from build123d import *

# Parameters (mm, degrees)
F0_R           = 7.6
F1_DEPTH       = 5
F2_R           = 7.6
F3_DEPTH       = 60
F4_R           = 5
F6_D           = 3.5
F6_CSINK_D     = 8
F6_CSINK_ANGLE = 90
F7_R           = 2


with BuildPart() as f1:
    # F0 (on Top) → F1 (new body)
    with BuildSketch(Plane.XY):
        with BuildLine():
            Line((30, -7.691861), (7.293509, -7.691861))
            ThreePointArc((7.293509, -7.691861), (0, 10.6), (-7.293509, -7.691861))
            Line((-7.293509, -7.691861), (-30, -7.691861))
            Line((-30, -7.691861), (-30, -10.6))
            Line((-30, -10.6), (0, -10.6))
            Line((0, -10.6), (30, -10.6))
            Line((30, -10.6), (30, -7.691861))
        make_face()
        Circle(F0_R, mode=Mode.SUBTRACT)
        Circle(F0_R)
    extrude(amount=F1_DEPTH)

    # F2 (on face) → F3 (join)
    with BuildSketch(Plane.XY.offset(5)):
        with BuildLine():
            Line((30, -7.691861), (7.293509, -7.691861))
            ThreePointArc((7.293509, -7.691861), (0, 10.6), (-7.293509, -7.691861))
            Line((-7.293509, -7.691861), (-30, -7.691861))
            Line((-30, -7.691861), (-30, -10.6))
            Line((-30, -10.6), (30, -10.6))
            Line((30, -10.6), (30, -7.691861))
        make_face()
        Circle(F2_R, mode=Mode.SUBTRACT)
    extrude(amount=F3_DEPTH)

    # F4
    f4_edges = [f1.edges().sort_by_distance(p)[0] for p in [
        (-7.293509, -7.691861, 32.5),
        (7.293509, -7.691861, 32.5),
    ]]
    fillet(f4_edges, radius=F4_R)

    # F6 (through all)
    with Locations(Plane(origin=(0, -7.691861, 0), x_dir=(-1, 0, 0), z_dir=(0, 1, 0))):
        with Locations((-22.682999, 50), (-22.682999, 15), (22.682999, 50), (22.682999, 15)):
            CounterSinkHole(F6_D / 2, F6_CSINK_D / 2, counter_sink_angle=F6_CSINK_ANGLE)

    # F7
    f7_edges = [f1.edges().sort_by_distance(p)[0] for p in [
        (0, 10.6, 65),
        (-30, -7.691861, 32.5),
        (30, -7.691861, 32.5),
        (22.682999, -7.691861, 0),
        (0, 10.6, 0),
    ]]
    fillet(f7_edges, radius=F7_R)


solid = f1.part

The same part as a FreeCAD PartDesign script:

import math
import FreeCAD as App
import Part
import Sketcher
from FreeCAD import Vector
Q = App.Units.Quantity


def edges_at(feature, points):
    """Names of the edges that pass closest to the given points."""
    edges = feature.Shape.Edges
    near = lambda p: min(range(len(edges)), key=lambda i: edges[i].distToShape(Part.Vertex(*p))[0])
    return sorted({f"Edge{near(p) + 1}" for p in points})

doc = App.newDocument("Part")
body = doc.addObject("PartDesign::Body", "Body")

sketch1 = body.newObject("Sketcher::SketchObject", "Sketch")
sketch1.AttachmentSupport = (doc.getObject("XY_Plane"), [""])
sketch1.MapMode = "FlatFace"
sketch1.addGeometry(Part.LineSegment(Vector(30, -7.7, 0), Vector(7.3, -7.7, 0)), False)
sketch1.addGeometry(Part.ArcOfCircle(Part.Circle(Vector(0, 0, 0), Vector(0, 0, 1), 10.6), math.radians(-47), math.radians(227)), False)
sketch1.addGeometry(Part.LineSegment(Vector(-7.3, -7.7, 0), Vector(-30, -7.7, 0)), False)
sketch1.addGeometry(Part.LineSegment(Vector(-30, -7.7, 0), Vector(-30, -10.6, 0)), False)
sketch1.addGeometry(Part.LineSegment(Vector(-30, -10.6, 0), Vector(30, -10.6, 0)), False)
sketch1.addGeometry(Part.LineSegment(Vector(30, -10.6, 0), Vector(30, -7.7, 0)), False)
sketch1.addConstraint(Sketcher.Constraint("Coincident", 0, 2, 1, 1))
sketch1.addConstraint(Sketcher.Constraint("Coincident", 1, 2, 2, 1))
sketch1.addConstraint(Sketcher.Constraint("Coincident", 2, 2, 3, 1))
sketch1.addConstraint(Sketcher.Constraint("Coincident", 3, 2, 4, 1))
sketch1.addConstraint(Sketcher.Constraint("Coincident", 4, 2, 5, 1))
sketch1.addConstraint(Sketcher.Constraint("Coincident", 5, 2, 0, 1))
sketch1.addConstraint(Sketcher.Constraint("Horizontal", 0))
sketch1.addConstraint(Sketcher.Constraint("Horizontal", 2))
sketch1.addConstraint(Sketcher.Constraint("Vertical", 3))
sketch1.addConstraint(Sketcher.Constraint("Horizontal", 4))
sketch1.addConstraint(Sketcher.Constraint("Vertical", 5))
sketch1.addConstraint(Sketcher.Constraint("Coincident", 1, 3, -1, 1))
sketch1.addConstraint(Sketcher.Constraint("Symmetric", 2, 2, 5, 2, -2))
sketch1.addConstraint(Sketcher.Constraint("Radius", 1, Q("10.6 mm")))
sketch1.addConstraint(Sketcher.Constraint("DistanceX", 4, 1, 4, 2, Q("60 mm")))
sketch1.addConstraint(Sketcher.Constraint("DistanceY", 3, 2, -1, 1, Q("10.6 mm")))
sketch1.addConstraint(Sketcher.Constraint("DistanceX", 0, 2, 0, 1, Q("22.706491 mm")))
pad1 = body.newObject("PartDesign::Pad", "Pad")
pad1.Profile = sketch1
pad1.Length = 5

sketch2 = body.newObject("Sketcher::SketchObject", "Sketch001")
sketch2.AttachmentSupport = (doc.getObject("XY_Plane"), [""])
sketch2.MapMode = "FlatFace"
sketch2.AttachmentOffset = App.Placement(Vector(0, 0, 5), App.Rotation())
sketch2.addGeometry(Part.LineSegment(Vector(30, -7.7, 0), Vector(7.3, -7.7, 0)), False)
sketch2.addGeometry(Part.ArcOfCircle(Part.Circle(Vector(0, 0, 0), Vector(0, 0, 1), 10.6), math.radians(-47), math.radians(227)), False)
sketch2.addGeometry(Part.LineSegment(Vector(-7.3, -7.7, 0), Vector(-30, -7.7, 0)), False)
sketch2.addGeometry(Part.LineSegment(Vector(-30, -7.7, 0), Vector(-30, -10.6, 0)), False)
sketch2.addGeometry(Part.LineSegment(Vector(-30, -10.6, 0), Vector(30, -10.6, 0)), False)
sketch2.addGeometry(Part.LineSegment(Vector(30, -10.6, 0), Vector(30, -7.7, 0)), False)
sketch2.addGeometry(Part.Circle(Vector(0, 0, 0), Vector(0, 0, 1), 7.6), False)
sketch2.addConstraint(Sketcher.Constraint("Coincident", 0, 2, 1, 1))
sketch2.addConstraint(Sketcher.Constraint("Coincident", 1, 2, 2, 1))
sketch2.addConstraint(Sketcher.Constraint("Coincident", 2, 2, 3, 1))
sketch2.addConstraint(Sketcher.Constraint("Coincident", 3, 2, 4, 1))
sketch2.addConstraint(Sketcher.Constraint("Coincident", 4, 2, 5, 1))
sketch2.addConstraint(Sketcher.Constraint("Coincident", 5, 2, 0, 1))
sketch2.addConstraint(Sketcher.Constraint("Horizontal", 0))
sketch2.addConstraint(Sketcher.Constraint("Horizontal", 2))
sketch2.addConstraint(Sketcher.Constraint("Vertical", 3))
sketch2.addConstraint(Sketcher.Constraint("Horizontal", 4))
sketch2.addConstraint(Sketcher.Constraint("Vertical", 5))
sketch2.addConstraint(Sketcher.Constraint("Coincident", 1, 3, -1, 1))
sketch2.addConstraint(Sketcher.Constraint("Coincident", 6, 3, -1, 1))
sketch2.addConstraint(Sketcher.Constraint("Symmetric", 2, 2, 5, 2, -2))
sketch2.addConstraint(Sketcher.Constraint("Diameter", 6, Q("15.2 mm")))
sketch2.addConstraint(Sketcher.Constraint("Radius", 1, Q("10.6 mm")))
sketch2.addConstraint(Sketcher.Constraint("DistanceX", 4, 1, 4, 2, Q("60 mm")))
sketch2.addConstraint(Sketcher.Constraint("DistanceY", 3, 2, -1, 1, Q("10.6 mm")))
sketch2.addConstraint(Sketcher.Constraint("DistanceX", 0, 2, 0, 1, Q("22.706491 mm")))
pad2 = body.newObject("PartDesign::Pad", "Pad001")
pad2.Profile = sketch2
pad2.Length = 60
doc.recompute()

fillet = body.newObject("PartDesign::Fillet", "Fillet")
fillet.Base = (pad2, edges_at(pad2, [(-7.294, -7.692, 32.5), (7.294, -7.692, 32.5)]))
fillet.Radius = 5

sketch3 = body.newObject("Sketcher::SketchObject", "Sketch002")
sketch3.AttachmentSupport = (doc.getObject("XZ_Plane"), [""])
sketch3.MapMode = "FlatFace"
sketch3.AttachmentOffset = App.Placement(Vector(0, 0, 7.691861), App.Rotation())
sketch3.addGeometry(Part.Circle(Vector(22.7, 50, 0), Vector(0, 0, 1), 1.8), False)
sketch3.addGeometry(Part.Circle(Vector(22.7, 15, 0), Vector(0, 0, 1), 1.8), False)
sketch3.addGeometry(Part.Circle(Vector(-22.7, 50, 0), Vector(0, 0, 1), 1.8), False)
sketch3.addGeometry(Part.Circle(Vector(-22.7, 15, 0), Vector(0, 0, 1), 1.8), False)
sketch3.addConstraint(Sketcher.Constraint("Equal", 0, 1))
sketch3.addConstraint(Sketcher.Constraint("Equal", 1, 2))
sketch3.addConstraint(Sketcher.Constraint("Equal", 2, 3))
sketch3.addConstraint(Sketcher.Constraint("Symmetric", 0, 3, 2, 3, -2))
sketch3.addConstraint(Sketcher.Constraint("Symmetric", 1, 3, 3, 3, -2))
sketch3.addConstraint(Sketcher.Constraint("Vertical", 0, 3, 1, 3))
sketch3.addConstraint(Sketcher.Constraint("Diameter", 0, Q("3.5 mm")))
sketch3.addConstraint(Sketcher.Constraint("DistanceY", -1, 1, 0, 3, Q("50 mm")))
sketch3.addConstraint(Sketcher.Constraint("DistanceY", -1, 1, 1, 3, Q("15 mm")))
sketch3.addConstraint(Sketcher.Constraint("DistanceX", -1, 1, 0, 3, Q("22.682999 mm")))
doc.recompute()
hole = body.newObject("PartDesign::Hole", "Hole")
hole.Profile = sketch3
hole.ThreadType = "None"
hole.Diameter = 3.5
hole.DepthType = "ThroughAll"
hole.HoleCutType = "Countersink"
hole.HoleCutDiameter = 8
hole.HoleCutCountersinkAngle = 90
hole.Reversed = True
doc.recompute()

fillet2 = body.newObject("PartDesign::Fillet", "Fillet001")
fillet2.Base = (hole, edges_at(hole, [
    (0, 10.6, 65),
    (-30, -7.692, 32.5),
    (30, -7.692, 32.5),
    (22.683, -7.692, 0),
    (0, 10.6, 0),
]))
fillet2.Radius = 2

doc.recompute()
